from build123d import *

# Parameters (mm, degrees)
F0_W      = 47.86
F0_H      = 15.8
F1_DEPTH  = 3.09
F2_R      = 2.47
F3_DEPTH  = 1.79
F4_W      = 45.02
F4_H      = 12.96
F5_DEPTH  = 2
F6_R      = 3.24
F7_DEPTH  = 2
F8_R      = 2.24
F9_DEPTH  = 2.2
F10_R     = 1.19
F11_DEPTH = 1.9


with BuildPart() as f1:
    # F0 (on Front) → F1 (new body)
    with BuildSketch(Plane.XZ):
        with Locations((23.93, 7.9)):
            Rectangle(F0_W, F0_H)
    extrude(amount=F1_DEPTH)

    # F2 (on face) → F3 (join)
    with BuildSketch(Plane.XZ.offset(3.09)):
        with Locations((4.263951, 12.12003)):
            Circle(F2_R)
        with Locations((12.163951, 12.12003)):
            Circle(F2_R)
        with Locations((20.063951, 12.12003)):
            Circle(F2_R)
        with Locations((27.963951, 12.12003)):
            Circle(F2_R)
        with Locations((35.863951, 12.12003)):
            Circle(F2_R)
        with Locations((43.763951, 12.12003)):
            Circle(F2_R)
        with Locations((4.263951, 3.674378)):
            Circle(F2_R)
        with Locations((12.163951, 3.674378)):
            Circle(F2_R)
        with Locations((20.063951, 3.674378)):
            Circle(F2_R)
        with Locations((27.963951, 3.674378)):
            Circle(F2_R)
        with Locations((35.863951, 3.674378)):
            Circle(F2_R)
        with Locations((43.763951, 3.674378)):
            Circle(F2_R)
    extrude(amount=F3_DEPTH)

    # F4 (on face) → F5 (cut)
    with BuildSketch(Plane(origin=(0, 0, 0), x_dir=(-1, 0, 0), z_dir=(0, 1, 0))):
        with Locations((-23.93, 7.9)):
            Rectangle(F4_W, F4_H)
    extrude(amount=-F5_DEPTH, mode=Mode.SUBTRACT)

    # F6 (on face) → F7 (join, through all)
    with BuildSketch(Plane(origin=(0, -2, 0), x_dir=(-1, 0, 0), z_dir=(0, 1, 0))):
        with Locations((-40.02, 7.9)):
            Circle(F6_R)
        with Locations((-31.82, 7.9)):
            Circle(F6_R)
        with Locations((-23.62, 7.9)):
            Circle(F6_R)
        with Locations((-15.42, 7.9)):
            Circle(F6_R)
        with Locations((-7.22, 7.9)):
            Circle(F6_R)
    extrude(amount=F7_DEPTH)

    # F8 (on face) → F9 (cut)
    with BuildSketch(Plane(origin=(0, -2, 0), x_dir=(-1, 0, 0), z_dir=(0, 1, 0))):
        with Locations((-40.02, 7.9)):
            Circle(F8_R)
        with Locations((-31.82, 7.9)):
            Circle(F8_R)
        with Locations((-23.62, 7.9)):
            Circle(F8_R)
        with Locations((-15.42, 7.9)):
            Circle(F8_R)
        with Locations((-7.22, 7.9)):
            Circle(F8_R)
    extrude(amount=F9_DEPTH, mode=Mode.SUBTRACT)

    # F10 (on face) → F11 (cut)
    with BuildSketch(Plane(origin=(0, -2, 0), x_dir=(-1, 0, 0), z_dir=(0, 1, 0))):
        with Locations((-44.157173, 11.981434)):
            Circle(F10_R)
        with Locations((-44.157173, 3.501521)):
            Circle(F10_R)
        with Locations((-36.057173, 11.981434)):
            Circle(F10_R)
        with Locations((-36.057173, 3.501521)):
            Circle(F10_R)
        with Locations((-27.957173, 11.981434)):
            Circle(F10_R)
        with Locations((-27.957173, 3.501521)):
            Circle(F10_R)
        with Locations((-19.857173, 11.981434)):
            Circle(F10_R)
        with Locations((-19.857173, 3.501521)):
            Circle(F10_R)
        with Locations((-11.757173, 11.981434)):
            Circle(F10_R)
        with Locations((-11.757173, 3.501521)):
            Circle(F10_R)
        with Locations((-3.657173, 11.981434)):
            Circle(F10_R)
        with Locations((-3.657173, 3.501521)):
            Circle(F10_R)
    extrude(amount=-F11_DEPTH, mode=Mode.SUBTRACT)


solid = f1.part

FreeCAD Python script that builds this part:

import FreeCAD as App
import Part
import Sketcher

doc = App.newDocument("Part")
params = doc.addObject("Spreadsheet::Sheet", "Params")
for row, (alias, value) in enumerate([
    ("sketch1_height", "15.8 mm"),
    ("sketch1_width", "47.86 mm"),
    ("pad1_length", "3.09 mm"),
    ("sketch2_diameter", "4.94 mm"),
    ("pad2_length", "1.79 mm"),
    ("sketch3_width", "45.02 mm"),
    ("sketch3_height", "12.96 mm"),
    ("pocket1_length", "2 mm"),
    ("sketch4_diameter", "6.48 mm"),
    ("pad3_length", "2 mm"),
    ("sketch5_diameter", "4.48 mm"),
    ("pocket2_length", "2.2 mm"),
    ("sketch6_diameter", "2.38 mm"),
    ("pocket3_length", "1.9 mm"),
], start=1):
    params.set(f"A{row}", alias)
    params.set(f"B{row}", "=" + value)
    params.setAlias(f"B{row}", alias)

body = doc.addObject("PartDesign::Body", "Body")

# Sketch on XZ plane
sketch1 = doc.addObject("Sketcher::SketchObject", "Sketch")
body.addObject(sketch1)
sketch1.AttachmentSupport = (doc.XZ_Plane, [""])
sketch1.MapMode = "FlatFace"
sketch1.addGeometry([
    Part.LineSegment(App.Vector(0, 15.8, 0), App.Vector(0, 0, 0)),
    Part.LineSegment(App.Vector(0, 0, 0), App.Vector(47.86, 0, 0)),
    Part.LineSegment(App.Vector(47.86, 0, 0), App.Vector(47.86, 15.8, 0)),
    Part.LineSegment(App.Vector(47.86, 15.8, 0), App.Vector(0, 15.8, 0)),
], False)
sketch1.addConstraint([
    Sketcher.Constraint("Coincident", 0, 2, 1, 1),
    Sketcher.Constraint("Coincident", 1, 2, 2, 1),
    Sketcher.Constraint("Coincident", 2, 2, 3, 1),
    Sketcher.Constraint("Coincident", 3, 2, 0, 1),
    Sketcher.Constraint("Vertical", 0),
    Sketcher.Constraint("Horizontal", 1),
    Sketcher.Constraint("Vertical", 2),
    Sketcher.Constraint("Horizontal", 3),
    Sketcher.Constraint("Coincident", 0, 2, -1, 1),
    Sketcher.Constraint("DistanceY", 0, 2, 0, 1, 15.8),
    Sketcher.Constraint("DistanceX", 1, 1, 1, 2, 47.86),
])
sketch1.setExpression("Constraints[9]", "Params.sketch1_height")
sketch1.setExpression("Constraints[10]", "Params.sketch1_width")
pad1 = doc.addObject("PartDesign::Pad", "Pad")
body.addObject(pad1)
pad1.Profile = sketch1
pad1.setExpression("Length", "Params.pad1_length")

# Sketch on XZ plane
sketch2 = doc.addObject("Sketcher::SketchObject", "Sketch001")
body.addObject(sketch2)
sketch2.AttachmentSupport = (doc.XZ_Plane, [""])
sketch2.MapMode = "FlatFace"
sketch2.AttachmentOffset = App.Placement(App.Vector(0, 0, 3.09), App.Rotation())
sketch2.addGeometry([
    Part.Circle(App.Vector(4.263951, 12.12003, 0), App.Vector(0, 0, 1), 2.47),  # 0
    Part.Circle(App.Vector(12.163951, 12.12003, 0), App.Vector(0, 0, 1), 2.47),  # 1
    Part.Circle(App.Vector(20.063951, 12.12003, 0), App.Vector(0, 0, 1), 2.47),  # 2
    Part.Circle(App.Vector(27.963951, 12.12003, 0), App.Vector(0, 0, 1), 2.47),  # 3
    Part.Circle(App.Vector(35.863951, 12.12003, 0), App.Vector(0, 0, 1), 2.47),  # 4
    Part.Circle(App.Vector(43.763951, 12.12003, 0), App.Vector(0, 0, 1), 2.47),  # 5
    Part.Circle(App.Vector(4.263951, 3.674378, 0), App.Vector(0, 0, 1), 2.47),  # 6
    Part.Circle(App.Vector(12.163951, 3.674378, 0), App.Vector(0, 0, 1), 2.47),  # 7
    Part.Circle(App.Vector(20.063951, 3.674378, 0), App.Vector(0, 0, 1), 2.47),  # 8
    Part.Circle(App.Vector(27.963951, 3.674378, 0), App.Vector(0, 0, 1), 2.47),  # 9
    Part.Circle(App.Vector(35.863951, 3.674378, 0), App.Vector(0, 0, 1), 2.47),  # 10
    Part.Circle(App.Vector(43.763951, 3.674378, 0), App.Vector(0, 0, 1), 2.47),  # 11
], False)
sketch2.addConstraint([
    Sketcher.Constraint("Equal", 0, 1),
    Sketcher.Constraint("Equal", 1, 2),
    Sketcher.Constraint("Equal", 2, 3),
    Sketcher.Constraint("Equal", 3, 4),
    Sketcher.Constraint("Equal", 4, 5),
    Sketcher.Constraint("Equal", 5, 6),
    Sketcher.Constraint("Equal", 6, 7),
    Sketcher.Constraint("Equal", 7, 8),
    Sketcher.Constraint("Equal", 8, 9),
    Sketcher.Constraint("Equal", 9, 10),
    Sketcher.Constraint("Equal", 10, 11),
    Sketcher.Constraint("Horizontal", 0, 3, 1, 3),
    Sketcher.Constraint("Horizontal", 1, 3, 2, 3),
    Sketcher.Constraint("Horizontal", 2, 3, 3, 3),
    Sketcher.Constraint("Horizontal", 3, 3, 4, 3),
    Sketcher.Constraint("Horizontal", 4, 3, 5, 3),
    Sketcher.Constraint("Horizontal", 6, 3, 7, 3),
    Sketcher.Constraint("Horizontal", 7, 3, 8, 3),
    Sketcher.Constraint("Horizontal", 8, 3, 9, 3),
    Sketcher.Constraint("Horizontal", 9, 3, 10, 3),
    Sketcher.Constraint("Horizontal", 10, 3, 11, 3),
    Sketcher.Constraint("Vertical", 0, 3, 6, 3),
    Sketcher.Constraint("Vertical", 1, 3, 7, 3),
    Sketcher.Constraint("Vertical", 2, 3, 8, 3),
    Sketcher.Constraint("Vertical", 3, 3, 9, 3),
    Sketcher.Constraint("Vertical", 4, 3, 10, 3),
    Sketcher.Constraint("Vertical", 5, 3, 11, 3),
    Sketcher.Constraint("Diameter", 0, 4.94),
    Sketcher.Constraint("DistanceX", 0, 3, 1, 3, 7.9),
    Sketcher.Constraint("DistanceX", 1, 3, 2, 3, 7.9),
    Sketcher.Constraint("DistanceX", 2, 3, 3, 3, 7.9),
    Sketcher.Constraint("DistanceX", 3, 3, 4, 3, 7.9),
    Sketcher.Constraint("DistanceX", 4, 3, 5, 3, 7.9),
    Sketcher.Constraint("DistanceX", -1, 1, 0, 3, 4.263951),
    Sketcher.Constraint("DistanceY", -1, 1, 0, 3, 12.12003),
    Sketcher.Constraint("DistanceY", 6, 3, 0, 3, 8.445652),
])
sketch2.setExpression("Constraints[27]", "Params.sketch2_diameter")
pad2 = doc.addObject("PartDesign::Pad", "Pad001")
body.addObject(pad2)
pad2.Profile = sketch2
pad2.setExpression("Length", "Params.pad2_length")

# Sketch on XZ plane
sketch3 = doc.addObject("Sketcher::SketchObject", "Sketch002")
body.addObject(sketch3)
sketch3.AttachmentSupport = (doc.XZ_Plane, [""])
sketch3.MapMode = "FlatFace"
sketch3.addGeometry([
    Part.LineSegment(App.Vector(46.44, 14.38, 0), App.Vector(46.44, 1.42, 0)),
    Part.LineSegment(App.Vector(46.44, 1.42, 0), App.Vector(1.42, 1.42, 0)),
    Part.LineSegment(App.Vector(1.42, 1.42, 0), App.Vector(1.42, 14.38, 0)),
    Part.LineSegment(App.Vector(1.42, 14.38, 0), App.Vector(46.44, 14.38, 0)),
], False)
sketch3.addConstraint([
    Sketcher.Constraint("Coincident", 0, 2, 1, 1),
    Sketcher.Constraint("Coincident", 1, 2, 2, 1),
    Sketcher.Constraint("Coincident", 2, 2, 3, 1),
    Sketcher.Constraint("Coincident", 3, 2, 0, 1),
    Sketcher.Constraint("Vertical", 0),
    Sketcher.Constraint("Horizontal", 1),
    Sketcher.Constraint("Vertical", 2),
    Sketcher.Constraint("Horizontal", 3),
    Sketcher.Constraint("DistanceX", 1, 2, 1, 1, 45.02),
    Sketcher.Constraint("DistanceY", 0, 2, 0, 1, 12.96),
    Sketcher.Constraint("DistanceX", -1, 1, 0, 2, 46.44),
    Sketcher.Constraint("DistanceY", -1, 1, 0, 2, 1.42),
])
sketch3.setExpression("Constraints[8]", "Params.sketch3_width")
sketch3.setExpression("Constraints[9]", "Params.sketch3_height")
pocket1 = doc.addObject("PartDesign::Pocket", "Pocket")
body.addObject(pocket1)
pocket1.Profile = sketch3
pocket1.setExpression("Length", "Params.pocket1_length")
pocket1.Reversed = True

# Sketch on XZ plane
sketch4 = doc.addObject("Sketcher::SketchObject", "Sketch003")
body.addObject(sketch4)
sketch4.AttachmentSupport = (doc.XZ_Plane, [""])
sketch4.MapMode = "FlatFace"
sketch4.AttachmentOffset = App.Placement(App.Vector(0, 0, 2), App.Rotation())
sketch4.addGeometry([
    Part.Circle(App.Vector(40.02, 7.9, 0), App.Vector(0, 0, 1), 3.24),  # 0
    Part.Circle(App.Vector(31.82, 7.9, 0), App.Vector(0, 0, 1), 3.24),  # 1
    Part.Circle(App.Vector(23.62, 7.9, 0), App.Vector(0, 0, 1), 3.24),  # 2
    Part.Circle(App.Vector(15.42, 7.9, 0), App.Vector(0, 0, 1), 3.24),  # 3
    Part.Circle(App.Vector(7.22, 7.9, 0), App.Vector(0, 0, 1), 3.24),  # 4
], False)
sketch4.addConstraint([
    Sketcher.Constraint("Equal", 0, 1),
    Sketcher.Constraint("Equal", 1, 2),
    Sketcher.Constraint("Equal", 2, 3),
    Sketcher.Constraint("Equal", 3, 4),
    Sketcher.Constraint("Horizontal", 0, 3, 1, 3),
    Sketcher.Constraint("Horizontal", 1, 3, 2, 3),
    Sketcher.Constraint("Horizontal", 2, 3, 3, 3),
    Sketcher.Constraint("Horizontal", 3, 3, 4, 3),
    Sketcher.Constraint("Diameter", 0, 6.48),
    Sketcher.Constraint("DistanceY", -1, 1, 0, 3, 7.9),
    Sketcher.Constraint("DistanceX", 1, 3, 0, 3, 8.2),
    Sketcher.Constraint("DistanceX", 2, 3, 1, 3, 8.2),
    Sketcher.Constraint("DistanceX", 3, 3, 2, 3, 8.2),
    Sketcher.Constraint("DistanceX", 4, 3, 3, 3, 8.2),
    Sketcher.Constraint("DistanceX", -1, 1, 0, 3, 40.02),
])
sketch4.setExpression("Constraints[8]", "Params.sketch4_diameter")
pad3 = doc.addObject("PartDesign::Pad", "Pad002")
body.addObject(pad3)
pad3.Profile = sketch4
pad3.setExpression("Length", "Params.pad3_length")
pad3.Reversed = True

# Sketch on XZ plane
sketch5 = doc.addObject("Sketcher::SketchObject", "Sketch004")
body.addObject(sketch5)
sketch5.AttachmentSupport = (doc.XZ_Plane, [""])
sketch5.MapMode = "FlatFace"
sketch5.AttachmentOffset = App.Placement(App.Vector(0, 0, 2), App.Rotation())
sketch5.addGeometry([
    Part.Circle(App.Vector(40.02, 7.9, 0), App.Vector(0, 0, 1), 2.24),  # 0
    Part.Circle(App.Vector(31.82, 7.9, 0), App.Vector(0, 0, 1), 2.24),  # 1
    Part.Circle(App.Vector(23.62, 7.9, 0), App.Vector(0, 0, 1), 2.24),  # 2
    Part.Circle(App.Vector(15.42, 7.9, 0), App.Vector(0, 0, 1), 2.24),  # 3
    Part.Circle(App.Vector(7.22, 7.9, 0), App.Vector(0, 0, 1), 2.24),  # 4
], False)
sketch5.addConstraint([
    Sketcher.Constraint("Equal", 0, 1),
    Sketcher.Constraint("Equal", 1, 2),
    Sketcher.Constraint("Equal", 2, 3),
    Sketcher.Constraint("Equal", 3, 4),
    Sketcher.Constraint("Horizontal", 0, 3, 1, 3),
    Sketcher.Constraint("Horizontal", 1, 3, 2, 3),
    Sketcher.Constraint("Horizontal", 2, 3, 3, 3),
    Sketcher.Constraint("Horizontal", 3, 3, 4, 3),
    Sketcher.Constraint("Diameter", 0, 4.48),
    Sketcher.Constraint("DistanceY", -1, 1, 0, 3, 7.9),
    Sketcher.Constraint("DistanceX", 1, 3, 0, 3, 8.2),
    Sketcher.Constraint("DistanceX", 2, 3, 1, 3, 8.2),
    Sketcher.Constraint("DistanceX", 3, 3, 2, 3, 8.2),
    Sketcher.Constraint("DistanceX", 4, 3, 3, 3, 8.2),
    Sketcher.Constraint("DistanceX", -1, 1, 0, 3, 40.02),
])
sketch5.setExpression("Constraints[8]", "Params.sketch5_diameter")
pocket2 = doc.addObject("PartDesign::Pocket", "Pocket001")
body.addObject(pocket2)
pocket2.Profile = sketch5
pocket2.setExpression("Length", "Params.pocket2_length")

# Sketch on XZ plane
sketch6 = doc.addObject("Sketcher::SketchObject", "Sketch005")
body.addObject(sketch6)
sketch6.AttachmentSupport = (doc.XZ_Plane, [""])
sketch6.MapMode = "FlatFace"
sketch6.AttachmentOffset = App.Placement(App.Vector(0, 0, 2), App.Rotation())
sketch6.addGeometry([
    Part.Circle(App.Vector(44.157173, 11.981434, 0), App.Vector(0, 0, 1), 1.19),  # 0
    Part.Circle(App.Vector(44.157173, 3.501521, 0), App.Vector(0, 0, 1), 1.19),  # 1
    Part.Circle(App.Vector(36.057173, 11.981434, 0), App.Vector(0, 0, 1), 1.19),  # 2
    Part.Circle(App.Vector(36.057173, 3.501521, 0), App.Vector(0, 0, 1), 1.19),  # 3
    Part.Circle(App.Vector(27.957173, 11.981434, 0), App.Vector(0, 0, 1), 1.19),  # 4
    Part.Circle(App.Vector(27.957173, 3.501521, 0), App.Vector(0, 0, 1), 1.19),  # 5
    Part.Circle(App.Vector(19.857173, 11.981434, 0), App.Vector(0, 0, 1), 1.19),  # 6
    Part.Circle(App.Vector(19.857173, 3.501521, 0), App.Vector(0, 0, 1), 1.19),  # 7
    Part.Circle(App.Vector(11.757173, 11.981434, 0), App.Vector(0, 0, 1), 1.19),  # 8
    Part.Circle(App.Vector(11.757173, 3.501521, 0), App.Vector(0, 0, 1), 1.19),  # 9
    Part.Circle(App.Vector(3.657173, 11.981434, 0), App.Vector(0, 0, 1), 1.19),  # 10
    Part.Circle(App.Vector(3.657173, 3.501521, 0), App.Vector(0, 0, 1), 1.19),  # 11
], False)
sketch6.addConstraint([
    Sketcher.Constraint("Equal", 0, 1),
    Sketcher.Constraint("Equal", 1, 2),
    Sketcher.Constraint("Equal", 2, 3),
    Sketcher.Constraint("Equal", 3, 4),
    Sketcher.Constraint("Equal", 4, 5),
    Sketcher.Constraint("Equal", 5, 6),
    Sketcher.Constraint("Equal", 6, 7),
    Sketcher.Constraint("Equal", 7, 8),
    Sketcher.Constraint("Equal", 8, 9),
    Sketcher.Constraint("Equal", 9, 10),
    Sketcher.Constraint("Equal", 10, 11),
    Sketcher.Constraint("Horizontal", 0, 3, 2, 3),
    Sketcher.Constraint("Horizontal", 1, 3, 3, 3),
    Sketcher.Constraint("Horizontal", 2, 3, 4, 3),
    Sketcher.Constraint("Horizontal", 3, 3, 5, 3),
    Sketcher.Constraint("Horizontal", 4, 3, 6, 3),
    Sketcher.Constraint("Horizontal", 5, 3, 7, 3),
    Sketcher.Constraint("Horizontal", 6, 3, 8, 3),
    Sketcher.Constraint("Horizontal", 7, 3, 9, 3),
    Sketcher.Constraint("Horizontal", 8, 3, 10, 3),
    Sketcher.Constraint("Horizontal", 9, 3, 11, 3),
    Sketcher.Constraint("Vertical", 0, 3, 1, 3),
    Sketcher.Constraint("Vertical", 2, 3, 3, 3),
    Sketcher.Constraint("Vertical", 4, 3, 5, 3),
    Sketcher.Constraint("Vertical", 6, 3, 7, 3),
    Sketcher.Constraint("Vertical", 8, 3, 9, 3),
    Sketcher.Constraint("Vertical", 10, 3, 11, 3),
    Sketcher.Constraint("Diameter", 0, 2.38),
    Sketcher.Constraint("DistanceX", 2, 3, 0, 3, 8.1),
    Sketcher.Constraint("DistanceX", 4, 3, 2, 3, 8.1),
    Sketcher.Constraint("DistanceX", 6, 3, 4, 3, 8.1),
    Sketcher.Constraint("DistanceX", 8, 3, 6, 3, 8.1),
    Sketcher.Constraint("DistanceX", 10, 3, 8, 3, 8.1),
    Sketcher.Constraint("DistanceY", -1, 1, 1, 3, 3.501521),
    Sketcher.Constraint("DistanceX", -1, 1, 0, 3, 44.157173),
    Sketcher.Constraint("DistanceY", -1, 1, 0, 3, 11.981434),
])
sketch6.setExpression("Constraints[27]", "Params.sketch6_diameter")
pocket3 = doc.addObject("PartDesign::Pocket", "Pocket002")
body.addObject(pocket3)
pocket3.Profile = sketch6
pocket3.setExpression("Length", "Params.pocket3_length")
pocket3.Reversed = True

doc.recompute()
